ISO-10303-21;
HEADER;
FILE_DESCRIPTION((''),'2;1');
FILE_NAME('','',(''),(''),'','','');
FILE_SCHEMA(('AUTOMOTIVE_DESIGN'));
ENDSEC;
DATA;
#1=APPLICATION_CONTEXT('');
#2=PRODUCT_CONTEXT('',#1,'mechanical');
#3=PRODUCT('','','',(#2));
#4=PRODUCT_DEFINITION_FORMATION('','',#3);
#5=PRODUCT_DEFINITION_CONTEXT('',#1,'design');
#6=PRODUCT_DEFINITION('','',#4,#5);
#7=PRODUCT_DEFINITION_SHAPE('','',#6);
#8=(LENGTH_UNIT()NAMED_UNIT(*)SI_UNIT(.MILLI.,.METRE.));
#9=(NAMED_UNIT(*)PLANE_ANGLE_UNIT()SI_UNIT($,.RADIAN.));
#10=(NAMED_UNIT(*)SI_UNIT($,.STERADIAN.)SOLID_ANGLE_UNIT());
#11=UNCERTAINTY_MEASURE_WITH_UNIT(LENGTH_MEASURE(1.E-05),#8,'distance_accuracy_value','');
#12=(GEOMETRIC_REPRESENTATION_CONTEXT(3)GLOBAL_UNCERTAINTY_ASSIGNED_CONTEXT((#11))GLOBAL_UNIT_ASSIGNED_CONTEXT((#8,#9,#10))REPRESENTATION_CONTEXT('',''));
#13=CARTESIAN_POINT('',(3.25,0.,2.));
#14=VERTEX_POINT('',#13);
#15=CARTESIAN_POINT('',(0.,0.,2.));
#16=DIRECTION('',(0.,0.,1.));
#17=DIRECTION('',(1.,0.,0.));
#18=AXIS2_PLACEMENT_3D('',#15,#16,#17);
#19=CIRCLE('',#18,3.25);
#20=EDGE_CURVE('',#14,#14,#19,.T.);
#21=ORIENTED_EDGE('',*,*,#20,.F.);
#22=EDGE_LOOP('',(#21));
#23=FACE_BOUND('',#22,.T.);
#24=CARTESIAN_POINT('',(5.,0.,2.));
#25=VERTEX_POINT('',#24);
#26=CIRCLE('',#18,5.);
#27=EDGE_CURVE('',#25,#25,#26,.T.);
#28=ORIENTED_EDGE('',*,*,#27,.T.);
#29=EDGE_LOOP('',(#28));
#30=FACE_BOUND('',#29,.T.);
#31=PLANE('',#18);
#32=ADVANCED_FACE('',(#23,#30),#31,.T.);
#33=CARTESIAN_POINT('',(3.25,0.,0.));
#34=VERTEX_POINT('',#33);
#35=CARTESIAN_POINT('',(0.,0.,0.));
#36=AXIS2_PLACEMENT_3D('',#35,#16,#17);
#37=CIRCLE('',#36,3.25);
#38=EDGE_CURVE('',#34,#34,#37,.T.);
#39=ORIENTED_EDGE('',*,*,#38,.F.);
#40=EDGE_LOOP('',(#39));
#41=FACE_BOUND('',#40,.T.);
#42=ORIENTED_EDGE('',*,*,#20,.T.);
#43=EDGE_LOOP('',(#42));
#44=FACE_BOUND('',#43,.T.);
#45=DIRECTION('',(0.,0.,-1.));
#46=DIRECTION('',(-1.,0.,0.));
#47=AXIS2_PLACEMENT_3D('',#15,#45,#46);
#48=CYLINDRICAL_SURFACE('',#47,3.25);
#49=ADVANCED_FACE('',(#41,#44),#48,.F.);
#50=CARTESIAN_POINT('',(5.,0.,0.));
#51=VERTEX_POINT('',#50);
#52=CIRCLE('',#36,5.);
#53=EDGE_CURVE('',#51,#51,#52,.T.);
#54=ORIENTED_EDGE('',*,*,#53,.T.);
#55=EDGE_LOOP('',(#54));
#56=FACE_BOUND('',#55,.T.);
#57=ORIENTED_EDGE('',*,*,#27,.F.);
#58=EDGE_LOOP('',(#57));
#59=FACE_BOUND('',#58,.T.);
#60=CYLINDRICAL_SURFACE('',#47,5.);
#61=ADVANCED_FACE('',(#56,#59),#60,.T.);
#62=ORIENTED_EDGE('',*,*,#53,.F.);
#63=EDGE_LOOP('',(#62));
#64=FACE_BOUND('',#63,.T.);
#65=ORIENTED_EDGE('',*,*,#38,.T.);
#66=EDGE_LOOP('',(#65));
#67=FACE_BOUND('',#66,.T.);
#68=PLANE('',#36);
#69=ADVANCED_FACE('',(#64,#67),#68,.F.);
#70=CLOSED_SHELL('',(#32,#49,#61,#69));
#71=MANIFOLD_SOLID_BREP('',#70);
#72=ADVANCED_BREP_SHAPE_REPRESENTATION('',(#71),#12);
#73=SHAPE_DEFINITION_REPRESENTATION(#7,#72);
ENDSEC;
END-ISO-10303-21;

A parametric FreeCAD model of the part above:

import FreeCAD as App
import Part
import Sketcher

V = App.Vector
Q = App.Units.Quantity

doc = App.newDocument("Part")
body = doc.addObject("PartDesign::Body", "Body")

sketch1 = body.newObject("Sketcher::SketchObject", "Sketch")
sketch1.AttachmentSupport = (doc.getObject("XY_Plane"), [""])
sketch1.MapMode = "FlatFace"
sketch1.addGeometry(Part.Circle(V(0, 0, 0), V(0, 0, 1), 5), False)
sketch1.addGeometry(Part.Circle(V(0, 0, 0), V(0, 0, 1), 3.25), False)
sketch1.addConstraint(Sketcher.Constraint("Coincident", 0, 3, -1, 1))
sketch1.addConstraint(Sketcher.Constraint("Coincident", 1, 3, -1, 1))
sketch1.addConstraint(Sketcher.Constraint("Diameter", 0, Q("10 mm")))
sketch1.addConstraint(Sketcher.Constraint("Diameter", 1, Q("6.5 mm")))
pad1 = body.newObject("PartDesign::Pad", "Pad")
pad1.Profile = sketch1
pad1.Length = 2

doc.recompute()
